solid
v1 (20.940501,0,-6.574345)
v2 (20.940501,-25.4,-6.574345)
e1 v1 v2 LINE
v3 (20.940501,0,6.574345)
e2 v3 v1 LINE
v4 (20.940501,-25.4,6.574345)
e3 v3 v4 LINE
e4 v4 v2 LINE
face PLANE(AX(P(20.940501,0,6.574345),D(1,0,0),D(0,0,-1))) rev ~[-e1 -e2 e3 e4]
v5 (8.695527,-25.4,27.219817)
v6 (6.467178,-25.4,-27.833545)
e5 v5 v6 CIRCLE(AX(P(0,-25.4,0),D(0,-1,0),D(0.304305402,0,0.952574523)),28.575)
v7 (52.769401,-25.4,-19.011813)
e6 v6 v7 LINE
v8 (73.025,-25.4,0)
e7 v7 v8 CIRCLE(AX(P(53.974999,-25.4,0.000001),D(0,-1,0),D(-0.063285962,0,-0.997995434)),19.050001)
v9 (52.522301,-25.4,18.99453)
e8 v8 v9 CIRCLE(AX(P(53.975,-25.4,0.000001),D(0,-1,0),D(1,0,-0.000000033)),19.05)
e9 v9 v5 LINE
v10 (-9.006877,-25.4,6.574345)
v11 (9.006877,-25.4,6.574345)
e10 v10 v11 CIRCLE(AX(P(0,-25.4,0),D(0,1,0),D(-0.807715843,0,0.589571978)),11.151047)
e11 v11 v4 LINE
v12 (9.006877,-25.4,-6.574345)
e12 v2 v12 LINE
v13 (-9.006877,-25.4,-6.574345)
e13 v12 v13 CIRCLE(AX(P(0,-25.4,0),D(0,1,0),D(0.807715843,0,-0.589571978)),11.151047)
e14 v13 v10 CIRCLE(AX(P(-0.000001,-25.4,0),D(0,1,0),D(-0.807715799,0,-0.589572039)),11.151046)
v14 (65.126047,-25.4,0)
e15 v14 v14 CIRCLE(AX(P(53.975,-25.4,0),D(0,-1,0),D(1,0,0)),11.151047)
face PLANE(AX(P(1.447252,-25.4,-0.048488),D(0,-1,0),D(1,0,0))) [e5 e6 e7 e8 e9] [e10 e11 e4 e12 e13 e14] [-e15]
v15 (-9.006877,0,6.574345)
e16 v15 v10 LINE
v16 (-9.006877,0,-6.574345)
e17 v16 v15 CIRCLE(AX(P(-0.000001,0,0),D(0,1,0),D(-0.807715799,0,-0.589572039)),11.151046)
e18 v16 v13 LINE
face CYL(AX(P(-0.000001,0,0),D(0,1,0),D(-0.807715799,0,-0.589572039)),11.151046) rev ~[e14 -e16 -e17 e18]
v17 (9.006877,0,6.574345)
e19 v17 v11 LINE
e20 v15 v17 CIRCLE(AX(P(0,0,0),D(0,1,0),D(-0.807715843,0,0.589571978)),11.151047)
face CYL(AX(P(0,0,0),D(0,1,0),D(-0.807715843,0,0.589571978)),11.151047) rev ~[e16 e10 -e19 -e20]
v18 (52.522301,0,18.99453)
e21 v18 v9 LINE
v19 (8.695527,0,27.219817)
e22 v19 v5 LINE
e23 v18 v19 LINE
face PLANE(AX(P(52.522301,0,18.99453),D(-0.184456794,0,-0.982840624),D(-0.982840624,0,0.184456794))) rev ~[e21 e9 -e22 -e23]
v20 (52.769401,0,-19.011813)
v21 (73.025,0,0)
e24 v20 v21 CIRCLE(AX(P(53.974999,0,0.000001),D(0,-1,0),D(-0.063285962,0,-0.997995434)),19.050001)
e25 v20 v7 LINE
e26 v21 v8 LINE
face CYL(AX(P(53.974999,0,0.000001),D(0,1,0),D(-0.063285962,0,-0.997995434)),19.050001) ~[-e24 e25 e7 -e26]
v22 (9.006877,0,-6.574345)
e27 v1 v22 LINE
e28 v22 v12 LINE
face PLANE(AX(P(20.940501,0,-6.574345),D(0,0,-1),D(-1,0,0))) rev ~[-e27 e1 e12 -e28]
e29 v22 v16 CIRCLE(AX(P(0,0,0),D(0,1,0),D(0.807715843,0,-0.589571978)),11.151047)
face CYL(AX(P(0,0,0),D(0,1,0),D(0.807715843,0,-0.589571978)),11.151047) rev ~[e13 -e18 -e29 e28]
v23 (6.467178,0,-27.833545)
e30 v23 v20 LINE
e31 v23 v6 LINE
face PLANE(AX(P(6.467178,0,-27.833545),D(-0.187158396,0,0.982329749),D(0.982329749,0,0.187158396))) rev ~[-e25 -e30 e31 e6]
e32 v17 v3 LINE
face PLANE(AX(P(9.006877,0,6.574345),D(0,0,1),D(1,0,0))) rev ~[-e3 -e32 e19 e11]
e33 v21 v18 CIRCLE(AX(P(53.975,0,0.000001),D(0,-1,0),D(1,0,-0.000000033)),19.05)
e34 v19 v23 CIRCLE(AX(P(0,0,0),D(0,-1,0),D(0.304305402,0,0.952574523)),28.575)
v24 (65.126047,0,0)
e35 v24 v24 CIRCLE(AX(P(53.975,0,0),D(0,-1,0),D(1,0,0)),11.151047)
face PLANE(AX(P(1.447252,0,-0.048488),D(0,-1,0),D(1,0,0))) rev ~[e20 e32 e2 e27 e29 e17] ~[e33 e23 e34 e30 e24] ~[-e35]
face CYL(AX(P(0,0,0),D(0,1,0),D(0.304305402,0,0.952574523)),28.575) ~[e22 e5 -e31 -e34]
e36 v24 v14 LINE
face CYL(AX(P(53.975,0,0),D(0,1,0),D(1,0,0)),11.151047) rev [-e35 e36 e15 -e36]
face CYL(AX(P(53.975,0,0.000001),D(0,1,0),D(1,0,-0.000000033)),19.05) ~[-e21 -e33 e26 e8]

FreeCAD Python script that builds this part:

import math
import FreeCAD as App
import Part
import Sketcher
Q = App.Units.Quantity

doc = App.newDocument("Part")
params = doc.addObject("Spreadsheet::Sheet", "Params")
for row, (alias, value) in enumerate([
    ("sketch1_radius", "0.7500001 in"),
    ("sketch1_radius2", "1.125 in"),
    ("pad1_length", "1 in"),
], start=1):
    params.set(f"A{row}", alias)
    params.set(f"B{row}", "=" + value)
    params.setAlias(f"B{row}", alias)

body = doc.addObject("PartDesign::Body", "Body")

sketch1 = body.newObject("Sketcher::SketchObject", "Sketch")
sketch1.AttachmentSupport = (doc.getObject("XZ_Plane"), [""])
sketch1.MapMode = "FlatFace"
sketch1.addGeometry([
    Part.ArcOfCircle(Part.Circle(App.Vector(0, 0, 0), App.Vector(0, 0, 1), 29), math.radians(72), math.radians(283)),
    Part.LineSegment(App.Vector(6, -28, 0), App.Vector(53, -19, 0)),
    Part.ArcOfCircle(Part.Circle(App.Vector(54, 0, 0), App.Vector(0, 0, 1), 19), math.radians(-94), math.radians(0)),
    Part.ArcOfCircle(Part.Circle(App.Vector(54, 0, 0), App.Vector(0, 0, 1), 19), math.radians(0), math.radians(94)),
    Part.LineSegment(App.Vector(53, 19, 0), App.Vector(9, 27, 0)),
    Part.ArcOfCircle(Part.Circle(App.Vector(0, 0, 0), App.Vector(0, 0, 1), 11), math.radians(-144), math.radians(-36)),
    Part.ArcOfCircle(Part.Circle(App.Vector(0, 0, 0), App.Vector(0, 0, 1), 11), math.radians(144), math.radians(216)),
    Part.ArcOfCircle(Part.Circle(App.Vector(0, 0, 0), App.Vector(0, 0, 1), 11), math.radians(36), math.radians(144)),
    Part.LineSegment(App.Vector(9, 7, 0), App.Vector(21, 7, 0)),
    Part.LineSegment(App.Vector(21, 7, 0), App.Vector(21, -7, 0)),
    Part.LineSegment(App.Vector(21, -7, 0), App.Vector(9, -7, 0)),
    Part.Circle(App.Vector(54, 0, 0), App.Vector(0, 0, 1), 11),
], False)
sketch1.addConstraint([
    Sketcher.Constraint("Coincident", 0, 2, 1, 1),
    Sketcher.Constraint("Coincident", 1, 2, 2, 1),
    Sketcher.Constraint("Tangent", 2, 2, 3, 1),
    Sketcher.Constraint("Coincident", 3, 2, 4, 1),
    Sketcher.Constraint("Coincident", 4, 2, 0, 1),
    Sketcher.Constraint("Tangent", 5, 1, 6, 2),
    Sketcher.Constraint("Tangent", 6, 1, 7, 2),
    Sketcher.Constraint("Coincident", 7, 1, 8, 1),
    Sketcher.Constraint("Coincident", 8, 2, 9, 1),
    Sketcher.Constraint("Coincident", 9, 2, 10, 1),
    Sketcher.Constraint("Coincident", 10, 2, 5, 2),
    Sketcher.Constraint("Horizontal", 8),
    Sketcher.Constraint("Vertical", 9),
    Sketcher.Constraint("Horizontal", 10),
    Sketcher.Constraint("Coincident", 0, 3, -1, 1),
    Sketcher.Constraint("Coincident", 5, 3, -1, 1),
    Sketcher.Constraint("Coincident", 7, 3, -1, 1),
    Sketcher.Constraint("Coincident", 11, 3, 2, 3),
    Sketcher.Constraint("Equal", 2, 3),
    Sketcher.Constraint("Equal", 7, 11),
    Sketcher.Constraint("PointOnObject", 2, 3, -1),
    Sketcher.Constraint("PointOnObject", 2, 2, -1),
    Sketcher.Constraint("Horizontal", 6, 1, 7, 1),
    Sketcher.Constraint("Horizontal", 5, 1, 9, 2),
    Sketcher.Constraint("Vertical", 5, 1, 6, 1),
    Sketcher.Constraint("Radius", 2, Q("0.7500001 in")),
    Sketcher.Constraint("Radius", 0, Q("1.125 in")),
    Sketcher.Constraint("DistanceX", -1, 1, 2, 3, Q("2.1249999 in")),
    Sketcher.Constraint("Diameter", 11, Q("22.302094 mm")),
    Sketcher.Constraint("DistanceY", 9, 2, 9, 1, Q("13.14869 mm")),
    Sketcher.Constraint("DistanceX", -1, 1, 1, 2, Q("52.769401 mm")),
    Sketcher.Constraint("DistanceX", -1, 1, 3, 2, Q("52.522301 mm")),
    Sketcher.Constraint("DistanceX", -1, 1, 8, 2, Q("20.940501 mm")),
    Sketcher.Constraint("DistanceY", 0, 2, 5, 1, Q("21.2592 mm")),
    Sketcher.Constraint("Distance", 4, Q("44.591944 mm")),
])
sketch1.setExpression("Constraints[25]", "Params.sketch1_radius")
sketch1.setExpression("Constraints[26]", "Params.sketch1_radius2")
pad1 = body.newObject("PartDesign::Pad", "Pad")
pad1.Profile = sketch1
pad1.setExpression("Length", "Params.pad1_length")

doc.recompute()
